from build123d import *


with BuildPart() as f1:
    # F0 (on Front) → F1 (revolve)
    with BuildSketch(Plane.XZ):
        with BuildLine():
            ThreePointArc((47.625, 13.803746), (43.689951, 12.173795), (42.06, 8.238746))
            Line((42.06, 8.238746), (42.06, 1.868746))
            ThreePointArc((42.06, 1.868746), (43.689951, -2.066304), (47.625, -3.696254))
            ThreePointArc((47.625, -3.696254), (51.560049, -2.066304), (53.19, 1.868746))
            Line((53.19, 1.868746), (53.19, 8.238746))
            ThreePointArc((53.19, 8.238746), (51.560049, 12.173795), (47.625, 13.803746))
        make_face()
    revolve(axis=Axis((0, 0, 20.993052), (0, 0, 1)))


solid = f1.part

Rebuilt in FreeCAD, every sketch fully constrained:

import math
import FreeCAD as App
import Part
import Sketcher
from FreeCAD import Vector

doc = App.newDocument("Part")
body = doc.addObject("PartDesign::Body", "Body")

# Sketch on XZ plane
sketch1 = body.newObject("Sketcher::SketchObject", "Sketch")
sketch1.AttachmentSupport = (doc.getObject("XZ_Plane"), [""])
sketch1.MapMode = "FlatFace"
sketch1.addGeometry(Part.ArcOfCircle(Part.Circle(Vector(48, 8, 0), Vector(0, 0, 1), 6), math.radians(90), math.radians(180)), False)
sketch1.addGeometry(Part.LineSegment(Vector(42, 8, 0), Vector(42, 2, 0)), False)
sketch1.addGeometry(Part.ArcOfCircle(Part.Circle(Vector(48, 2, 0), Vector(0, 0, 1), 6), math.radians(180), math.radians(270)), False)
sketch1.addGeometry(Part.ArcOfCircle(Part.Circle(Vector(48, 2, 0), Vector(0, 0, 1), 6), math.radians(-90), math.radians(0)), False)
sketch1.addGeometry(Part.LineSegment(Vector(53, 2, 0), Vector(53, 8, 0)), False)
sketch1.addGeometry(Part.ArcOfCircle(Part.Circle(Vector(48, 8, 0), Vector(0, 0, 1), 6), math.radians(0), math.radians(90)), False)
sketch1.addConstraint(Sketcher.Constraint("Tangent", 0, 2, 1, 1))
sketch1.addConstraint(Sketcher.Constraint("Tangent", 1, 2, 2, 1))
sketch1.addConstraint(Sketcher.Constraint("Tangent", 2, 2, 3, 1))
sketch1.addConstraint(Sketcher.Constraint("Tangent", 3, 2, 4, 1))
sketch1.addConstraint(Sketcher.Constraint("Tangent", 4, 2, 5, 1))
sketch1.addConstraint(Sketcher.Constraint("Tangent", 5, 2, 0, 1))
sketch1.addConstraint(Sketcher.Constraint("Vertical", 1))
sketch1.addConstraint(Sketcher.Constraint("Vertical", 4))
sketch1.addConstraint(Sketcher.Constraint("Equal", 0, 2))
sketch1.addConstraint(Sketcher.Constraint("Equal", 2, 3))
sketch1.addConstraint(Sketcher.Constraint("Vertical", 5, 3, 2, 2))
sketch1.addConstraint(Sketcher.Constraint("Vertical", 2, 2, 5, 2))
sketch1.addConstraint(Sketcher.Constraint("Radius", 0, 5.565001))
sketch1.addConstraint(Sketcher.Constraint("DistanceY", 1, 2, 1, 1, 6.37))
sketch1.addConstraint(Sketcher.Constraint("DistanceX", -1, 1, 0, 2, 42.06))
sketch1.addConstraint(Sketcher.Constraint("DistanceY", -1, 1, 0, 3, 8.238745))
revolution = body.newObject("PartDesign::Revolution", "Revolution")
revolution.Profile = sketch1
revolution.ReferenceAxis = (sketch1, ["V_Axis"])
revolution.Angle = 360

doc.recompute()
